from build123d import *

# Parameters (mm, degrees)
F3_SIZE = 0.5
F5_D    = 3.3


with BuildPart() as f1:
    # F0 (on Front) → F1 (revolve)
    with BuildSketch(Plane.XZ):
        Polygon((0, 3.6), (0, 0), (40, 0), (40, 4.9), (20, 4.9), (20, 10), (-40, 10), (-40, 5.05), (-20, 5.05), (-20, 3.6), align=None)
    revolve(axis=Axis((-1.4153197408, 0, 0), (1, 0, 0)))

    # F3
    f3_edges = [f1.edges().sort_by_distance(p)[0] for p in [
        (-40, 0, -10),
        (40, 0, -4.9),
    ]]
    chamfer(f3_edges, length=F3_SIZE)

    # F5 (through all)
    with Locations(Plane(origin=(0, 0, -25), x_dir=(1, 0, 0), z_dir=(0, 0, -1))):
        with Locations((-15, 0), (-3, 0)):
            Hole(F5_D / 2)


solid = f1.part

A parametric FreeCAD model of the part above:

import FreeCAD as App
import Part
import Sketcher
Q = App.Units.Quantity


def edges_at(feature, points):
    """Names of the edges that pass closest to the given points."""
    edges = feature.Shape.Edges
    near = lambda p: min(range(len(edges)), key=lambda i: edges[i].distToShape(Part.Vertex(*p))[0])
    return sorted({f"Edge{near(p) + 1}" for p in points})

doc = App.newDocument("Part")
body = doc.addObject("PartDesign::Body", "Body")

# Sketch on XZ plane
sketch1 = doc.addObject("Sketcher::SketchObject", "Sketch")
body.addObject(sketch1)
sketch1.AttachmentSupport = (doc.XZ_Plane, [""])
sketch1.MapMode = "FlatFace"
sketch1.addGeometry([
    Part.LineSegment(App.Vector(0, 3.6, 0), App.Vector(0, 0, 0)),  # 0
    Part.LineSegment(App.Vector(0, 0, 0), App.Vector(40, 0, 0)),  # 1
    Part.LineSegment(App.Vector(40, 0, 0), App.Vector(40, 4.9, 0)),  # 2
    Part.LineSegment(App.Vector(40, 4.9, 0), App.Vector(20, 4.9, 0)),  # 3
    Part.LineSegment(App.Vector(20, 4.9, 0), App.Vector(20, 10, 0)),  # 4
    Part.LineSegment(App.Vector(20, 10, 0), App.Vector(-40, 10, 0)),  # 5
    Part.LineSegment(App.Vector(-40, 10, 0), App.Vector(-40, 5.05, 0)),  # 6
    Part.LineSegment(App.Vector(-40, 5.05, 0), App.Vector(-20, 5.05, 0)),  # 7
    Part.LineSegment(App.Vector(-20, 5.05, 0), App.Vector(-20, 3.6, 0)),  # 8
    Part.LineSegment(App.Vector(-20, 3.6, 0), App.Vector(0, 3.6, 0)),  # 9
], False)
sketch1.addConstraint([
    Sketcher.Constraint("Coincident", 0, 2, 1, 1),
    Sketcher.Constraint("Coincident", 1, 2, 2, 1),
    Sketcher.Constraint("Coincident", 2, 2, 3, 1),
    Sketcher.Constraint("Coincident", 3, 2, 4, 1),
    Sketcher.Constraint("Coincident", 4, 2, 5, 1),
    Sketcher.Constraint("Coincident", 5, 2, 6, 1),
    Sketcher.Constraint("Coincident", 6, 2, 7, 1),
    Sketcher.Constraint("Coincident", 7, 2, 8, 1),
    Sketcher.Constraint("Coincident", 8, 2, 9, 1),
    Sketcher.Constraint("Coincident", 9, 2, 0, 1),
    Sketcher.Constraint("Vertical", 0),
    Sketcher.Constraint("Horizontal", 1),
    Sketcher.Constraint("Vertical", 2),
    Sketcher.Constraint("Horizontal", 3),
    Sketcher.Constraint("Vertical", 4),
    Sketcher.Constraint("Horizontal", 5),
    Sketcher.Constraint("Vertical", 6),
    Sketcher.Constraint("Horizontal", 7),
    Sketcher.Constraint("Vertical", 8),
    Sketcher.Constraint("Horizontal", 9),
    Sketcher.Constraint("Coincident", 0, 2, -1, 1),
    Sketcher.Constraint("Equal", 3, 7),
    Sketcher.Constraint("Equal", 7, 9),
    Sketcher.Constraint("DistanceX", 1, 1, 1, 2, Q("40 mm")),
    Sketcher.Constraint("DistanceX", 3, 2, 3, 1, Q("20 mm")),
    Sketcher.Constraint("DistanceY", 0, 2, 0, 1, Q("3.6 mm")),
    Sketcher.Constraint("DistanceY", 2, 1, 2, 2, Q("4.9 mm")),
    Sketcher.Constraint("DistanceY", 4, 1, 4, 2, Q("5.1 mm")),
    Sketcher.Constraint("DistanceY", 6, 2, 6, 1, Q("4.95 mm")),
])
revolution = doc.addObject("PartDesign::Revolution", "Revolution")
body.addObject(revolution)
revolution.Profile = sketch1
revolution.ReferenceAxis = (sketch1, ["H_Axis"])
revolution.Angle = 360
doc.recompute()

chamfer = doc.addObject("PartDesign::Chamfer", "Chamfer")
body.addObject(chamfer)
chamfer.Base = (revolution, edges_at(revolution, [(-40, 0, -10), (40, 0, -4.9)]))
chamfer.Size = 0.5

# Sketch on XY plane
sketch2 = doc.addObject("Sketcher::SketchObject", "Sketch001")
body.addObject(sketch2)
sketch2.AttachmentSupport = (doc.XY_Plane, [""])
sketch2.MapMode = "FlatFace"
sketch2.AttachmentOffset = App.Placement(App.Vector(0, 0, -25), App.Rotation())
sketch2.addGeometry([
    Part.Circle(App.Vector(-15, 0, 0), App.Vector(0, 0, 1), 1.65),
    Part.Circle(App.Vector(-3, 0, 0), App.Vector(0, 0, 1), 1.65),
], False)
sketch2.addConstraint([
    Sketcher.Constraint("Equal", 0, 1),
    Sketcher.Constraint("PointOnObject", 0, 3, -1),
    Sketcher.Constraint("PointOnObject", 1, 3, -1),
    Sketcher.Constraint("Diameter", 0, Q("3.3 mm")),
    Sketcher.Constraint("DistanceX", 0, 3, -1, 1, Q("15 mm")),
    Sketcher.Constraint("DistanceX", 1, 3, -1, 1, Q("3 mm")),
])
doc.recompute()
hole = doc.addObject("PartDesign::Hole", "Hole")
body.addObject(hole)
hole.Profile = sketch2
hole.ThreadType = "None"
hole.Diameter = 3.3
hole.DepthType = "ThroughAll"
hole.Reversed = True

doc.recompute()
